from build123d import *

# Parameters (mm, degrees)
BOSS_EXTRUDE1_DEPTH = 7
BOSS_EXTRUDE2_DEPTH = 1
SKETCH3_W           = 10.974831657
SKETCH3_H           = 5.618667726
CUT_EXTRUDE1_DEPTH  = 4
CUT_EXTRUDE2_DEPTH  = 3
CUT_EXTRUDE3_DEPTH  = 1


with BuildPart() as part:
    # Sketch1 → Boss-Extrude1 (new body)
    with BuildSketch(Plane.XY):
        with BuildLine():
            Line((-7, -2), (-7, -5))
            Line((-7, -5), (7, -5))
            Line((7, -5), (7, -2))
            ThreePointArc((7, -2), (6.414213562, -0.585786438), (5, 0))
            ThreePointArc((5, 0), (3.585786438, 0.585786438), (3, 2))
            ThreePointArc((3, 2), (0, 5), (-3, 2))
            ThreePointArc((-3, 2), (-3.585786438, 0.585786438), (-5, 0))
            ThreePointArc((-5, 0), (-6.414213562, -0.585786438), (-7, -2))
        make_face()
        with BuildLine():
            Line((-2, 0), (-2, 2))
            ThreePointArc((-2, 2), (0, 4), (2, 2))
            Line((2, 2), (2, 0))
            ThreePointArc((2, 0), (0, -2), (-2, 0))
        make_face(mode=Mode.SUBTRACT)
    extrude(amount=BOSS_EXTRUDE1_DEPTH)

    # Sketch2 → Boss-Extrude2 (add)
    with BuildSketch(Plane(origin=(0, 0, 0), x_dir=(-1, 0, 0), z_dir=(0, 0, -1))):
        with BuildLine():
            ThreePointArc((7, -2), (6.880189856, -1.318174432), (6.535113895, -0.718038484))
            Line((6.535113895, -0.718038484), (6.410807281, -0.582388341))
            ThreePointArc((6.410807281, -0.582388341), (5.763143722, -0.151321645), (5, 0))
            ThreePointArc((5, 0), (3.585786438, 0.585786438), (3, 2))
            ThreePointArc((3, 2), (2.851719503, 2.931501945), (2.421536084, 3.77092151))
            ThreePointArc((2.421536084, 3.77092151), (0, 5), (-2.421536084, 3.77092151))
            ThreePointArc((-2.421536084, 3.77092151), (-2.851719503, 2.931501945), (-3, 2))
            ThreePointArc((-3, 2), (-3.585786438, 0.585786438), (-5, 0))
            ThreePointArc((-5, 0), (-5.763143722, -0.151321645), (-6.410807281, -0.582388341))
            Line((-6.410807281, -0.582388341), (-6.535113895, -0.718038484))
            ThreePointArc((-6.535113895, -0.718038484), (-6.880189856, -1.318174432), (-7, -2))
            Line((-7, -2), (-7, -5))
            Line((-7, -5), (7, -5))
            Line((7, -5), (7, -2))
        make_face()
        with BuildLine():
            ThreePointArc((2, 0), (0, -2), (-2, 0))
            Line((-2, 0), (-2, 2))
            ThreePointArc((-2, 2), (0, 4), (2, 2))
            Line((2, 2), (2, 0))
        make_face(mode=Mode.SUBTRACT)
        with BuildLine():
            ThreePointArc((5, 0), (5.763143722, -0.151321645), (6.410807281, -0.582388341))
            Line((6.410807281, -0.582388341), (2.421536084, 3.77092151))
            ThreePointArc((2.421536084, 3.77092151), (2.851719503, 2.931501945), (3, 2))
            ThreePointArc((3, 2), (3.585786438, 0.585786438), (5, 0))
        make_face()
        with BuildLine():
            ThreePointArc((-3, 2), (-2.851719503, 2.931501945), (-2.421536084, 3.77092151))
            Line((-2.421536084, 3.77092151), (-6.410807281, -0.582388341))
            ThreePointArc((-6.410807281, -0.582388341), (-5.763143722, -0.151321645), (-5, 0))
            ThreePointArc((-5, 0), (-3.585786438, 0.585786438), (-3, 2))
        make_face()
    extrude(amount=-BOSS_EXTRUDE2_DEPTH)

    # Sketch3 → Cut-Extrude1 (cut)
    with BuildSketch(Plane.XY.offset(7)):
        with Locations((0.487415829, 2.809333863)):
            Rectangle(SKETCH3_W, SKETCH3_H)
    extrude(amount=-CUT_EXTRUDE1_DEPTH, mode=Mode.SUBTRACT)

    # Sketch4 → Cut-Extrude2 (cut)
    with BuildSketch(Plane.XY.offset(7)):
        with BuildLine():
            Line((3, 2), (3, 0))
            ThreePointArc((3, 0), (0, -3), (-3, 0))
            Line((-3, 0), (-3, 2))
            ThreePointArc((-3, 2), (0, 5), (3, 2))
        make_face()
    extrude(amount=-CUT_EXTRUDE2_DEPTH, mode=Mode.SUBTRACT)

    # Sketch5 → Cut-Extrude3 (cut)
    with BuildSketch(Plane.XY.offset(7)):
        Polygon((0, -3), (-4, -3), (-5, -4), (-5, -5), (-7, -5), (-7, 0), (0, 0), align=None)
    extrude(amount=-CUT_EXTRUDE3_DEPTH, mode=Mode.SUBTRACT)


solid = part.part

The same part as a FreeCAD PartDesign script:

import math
import FreeCAD as App
import Part
import Sketcher

V = App.Vector
Q = App.Units.Quantity

doc = App.newDocument("Part")
body = doc.addObject("PartDesign::Body", "Body")

# Sketch on XY plane
sketch1 = body.newObject("Sketcher::SketchObject", "Sketch")
sketch1.AttachmentSupport = (doc.getObject("XY_Plane"), [""])
sketch1.MapMode = "FlatFace"
sketch1.addGeometry(Part.LineSegment(V(-7, -2, 0), V(-7, -5, 0)), False)
sketch1.addGeometry(Part.LineSegment(V(-7, -5, 0), V(7, -5, 0)), False)
sketch1.addGeometry(Part.LineSegment(V(7, -5, 0), V(7, -2, 0)), False)
sketch1.addGeometry(Part.ArcOfCircle(Part.Circle(V(5, -2, 0), V(0, 0, 1), 2), math.radians(0), math.radians(90)), False)
sketch1.addGeometry(Part.ArcOfCircle(Part.Circle(V(5, 2, 0), V(0, 0, 1), 2), math.radians(-180), math.radians(-90)), False)
sketch1.addGeometry(Part.ArcOfCircle(Part.Circle(V(0, 2, 0), V(0, 0, 1), 3), math.radians(0), math.radians(180)), False)
sketch1.addGeometry(Part.ArcOfCircle(Part.Circle(V(-5, 2, 0), V(0, 0, 1), 2), math.radians(-90), math.radians(0)), False)
sketch1.addGeometry(Part.ArcOfCircle(Part.Circle(V(-5, -2, 0), V(0, 0, 1), 2), math.radians(90), math.radians(180)), False)
sketch1.addGeometry(Part.ArcOfCircle(Part.Circle(V(0, 0, 0), V(0, 0, 1), 2), math.radians(180), math.radians(360)), False)
sketch1.addGeometry(Part.LineSegment(V(-2, 0, 0), V(-2, 2, 0)), False)
sketch1.addGeometry(Part.ArcOfCircle(Part.Circle(V(0, 2, 0), V(0, 0, 1), 2), math.radians(0), math.radians(180)), False)
sketch1.addGeometry(Part.LineSegment(V(2, 2, 0), V(2, 0, 0)), False)
sketch1.addConstraint(Sketcher.Constraint("Coincident", 0, 2, 1, 1))
sketch1.addConstraint(Sketcher.Constraint("Coincident", 1, 2, 2, 1))
sketch1.addConstraint(Sketcher.Constraint("Tangent", 2, 2, 3, 1))
sketch1.addConstraint(Sketcher.Constraint("Tangent", 3, 2, 4, 2))
sketch1.addConstraint(Sketcher.Constraint("Tangent", 4, 1, 5, 1))
sketch1.addConstraint(Sketcher.Constraint("Tangent", 5, 2, 6, 2))
sketch1.addConstraint(Sketcher.Constraint("Tangent", 6, 1, 7, 1))
sketch1.addConstraint(Sketcher.Constraint("Tangent", 7, 2, 0, 1))
sketch1.addConstraint(Sketcher.Constraint("Tangent", 8, 1, 9, 1))
sketch1.addConstraint(Sketcher.Constraint("Tangent", 9, 2, 10, 2))
sketch1.addConstraint(Sketcher.Constraint("Tangent", 10, 1, 11, 1))
sketch1.addConstraint(Sketcher.Constraint("Tangent", 11, 2, 8, 2))
sketch1.addConstraint(Sketcher.Constraint("Vertical", 0))
sketch1.addConstraint(Sketcher.Constraint("Horizontal", 1))
sketch1.addConstraint(Sketcher.Constraint("Vertical", 2))
sketch1.addConstraint(Sketcher.Constraint("Vertical", 9))
sketch1.addConstraint(Sketcher.Constraint("Vertical", 11))
sketch1.addConstraint(Sketcher.Constraint("Coincident", 8, 3, -1, 1))
sketch1.addConstraint(Sketcher.Constraint("Coincident", 10, 3, 5, 3))
sketch1.addConstraint(Sketcher.Constraint("Equal", 3, 4))
sketch1.addConstraint(Sketcher.Constraint("Equal", 4, 6))
sketch1.addConstraint(Sketcher.Constraint("Equal", 6, 7))
sketch1.addConstraint(Sketcher.Constraint("Equal", 7, 8))
sketch1.addConstraint(Sketcher.Constraint("Symmetric", 3, 3, 6, 3, -1, 1))
sketch1.addConstraint(Sketcher.Constraint("Symmetric", 3, 3, 7, 3, -2))
sketch1.addConstraint(Sketcher.Constraint("Horizontal", 4, 3, 5, 3))
sketch1.addConstraint(Sketcher.Constraint("Radius", 3, Q("2 mm")))
sketch1.addConstraint(Sketcher.Constraint("Radius", 5, Q("3 mm")))
sketch1.addConstraint(Sketcher.Constraint("DistanceY", 0, 2, 0, 1, Q("3 mm")))
pad1 = body.newObject("PartDesign::Pad", "Pad")
pad1.Profile = sketch1
pad1.Length = 7

# Sketch on XY plane
sketch2 = body.newObject("Sketcher::SketchObject", "Sketch001")
sketch2.AttachmentSupport = (doc.getObject("XY_Plane"), [""])
sketch2.MapMode = "FlatFace"
sketch2.addGeometry(Part.ArcOfCircle(Part.Circle(V(-5, -2, 0), V(0, 0, 1), 2), math.radians(140), math.radians(180)), False)
sketch2.addGeometry(Part.LineSegment(V(-6.54, -0.72, 0), V(-6.41, -0.58, 0)), False)
sketch2.addGeometry(Part.LineSegment(V(-6.41, -0.58, 0), V(-2.42, 3.77, 0)), False)
sketch2.addGeometry(Part.ArcOfCircle(Part.Circle(V(0, 2, 0), V(0, 0, 1), 3), math.radians(36), math.radians(144)), False)
sketch2.addGeometry(Part.LineSegment(V(2.42, 3.77, 0), V(6.41, -0.58, 0)), False)
sketch2.addGeometry(Part.LineSegment(V(6.41, -0.58, 0), V(6.54, -0.72, 0)), False)
sketch2.addGeometry(Part.ArcOfCircle(Part.Circle(V(5, -2, 0), V(0, 0, 1), 2), math.radians(0), math.radians(40)), False)
sketch2.addGeometry(Part.LineSegment(V(7, -2, 0), V(7, -5, 0)), False)
sketch2.addGeometry(Part.LineSegment(V(7, -5, 0), V(-7, -5, 0)), False)
sketch2.addGeometry(Part.LineSegment(V(-7, -5, 0), V(-7, -2, 0)), False)
sketch2.addGeometry(Part.LineSegment(V(-2, 2, 0), V(-2, 0, 0)), False)
sketch2.addGeometry(Part.ArcOfCircle(Part.Circle(V(0, 0, 0), V(0, 0, 1), 2), math.radians(180), math.radians(360)), False)
sketch2.addGeometry(Part.LineSegment(V(2, 0, 0), V(2, 2, 0)), False)
sketch2.addGeometry(Part.ArcOfCircle(Part.Circle(V(0, 2, 0), V(0, 0, 1), 2), math.radians(0), math.radians(180)), False)
sketch2.addConstraint(Sketcher.Constraint("Coincident", 0, 1, 1, 1))
sketch2.addConstraint(Sketcher.Constraint("Coincident", 1, 2, 2, 1))
sketch2.addConstraint(Sketcher.Constraint("Coincident", 2, 2, 3, 2))
sketch2.addConstraint(Sketcher.Constraint("Coincident", 3, 1, 4, 1))
sketch2.addConstraint(Sketcher.Constraint("Coincident", 4, 2, 5, 1))
sketch2.addConstraint(Sketcher.Constraint("Coincident", 5, 2, 6, 2))
sketch2.addConstraint(Sketcher.Constraint("Tangent", 6, 1, 7, 1))
sketch2.addConstraint(Sketcher.Constraint("Coincident", 7, 2, 8, 1))
sketch2.addConstraint(Sketcher.Constraint("Coincident", 8, 2, 9, 1))
sketch2.addConstraint(Sketcher.Constraint("Tangent", 9, 2, 0, 2))
sketch2.addConstraint(Sketcher.Constraint("Tangent", 10, 2, 11, 1))
sketch2.addConstraint(Sketcher.Constraint("Tangent", 11, 2, 12, 1))
sketch2.addConstraint(Sketcher.Constraint("Tangent", 12, 2, 13, 1))
sketch2.addConstraint(Sketcher.Constraint("Tangent", 13, 2, 10, 1))
sketch2.addConstraint(Sketcher.Constraint("Vertical", 7))
sketch2.addConstraint(Sketcher.Constraint("Horizontal", 8))
sketch2.addConstraint(Sketcher.Constraint("Vertical", 9))
sketch2.addConstraint(Sketcher.Constraint("Vertical", 10))
sketch2.addConstraint(Sketcher.Constraint("Vertical", 12))
sketch2.addConstraint(Sketcher.Constraint("Coincident", 11, 3, -1, 1))
sketch2.addConstraint(Sketcher.Constraint("Coincident", 13, 3, 3, 3))
sketch2.addConstraint(Sketcher.Constraint("Equal", 0, 6))
sketch2.addConstraint(Sketcher.Constraint("Equal", 6, 11))
sketch2.addConstraint(Sketcher.Constraint("Symmetric", 0, 3, 6, 3, -2))
sketch2.addConstraint(Sketcher.Constraint("Symmetric", 1, 2, 4, 2, -2))
sketch2.addConstraint(Sketcher.Constraint("Parallel", 1, 2))
sketch2.addConstraint(Sketcher.Constraint("Parallel", 4, 5))
sketch2.addConstraint(Sketcher.Constraint("Horizontal", 2, 2, 3, 1))
sketch2.addConstraint(Sketcher.Constraint("Radius", 0, Q("2 mm")))
sketch2.addConstraint(Sketcher.Constraint("Radius", 3, Q("3 mm")))
sketch2.addConstraint(Sketcher.Constraint("DistanceX", 8, 2, 8, 1, Q("14 mm")))
sketch2.addConstraint(Sketcher.Constraint("DistanceY", 7, 2, 7, 1, Q("3 mm")))
sketch2.addConstraint(Sketcher.Constraint("DistanceY", 10, 2, 10, 1, Q("2 mm")))
sketch2.addConstraint(Sketcher.Constraint("DistanceY", 0, 3, -1, 1, Q("2 mm")))
sketch2.addConstraint(Sketcher.Constraint("Distance", 2, Q("5.904709 mm")))
sketch2.addConstraint(Sketcher.Constraint("DistanceY", 0, 1, -1, 1, Q("0.718038 mm")))
sketch2.addConstraint(Sketcher.Constraint("DistanceY", 1, 2, -1, 1, Q("0.582388 mm")))
pad2 = body.newObject("PartDesign::Pad", "Pad001")
pad2.Profile = sketch2
pad2.Length = 1

# Sketch on XY plane
sketch3 = body.newObject("Sketcher::SketchObject", "Sketch002")
sketch3.AttachmentSupport = (doc.getObject("XY_Plane"), [""])
sketch3.MapMode = "FlatFace"
sketch3.AttachmentOffset = App.Placement(V(0, 0, 7), App.Rotation())
sketch3.addGeometry(Part.LineSegment(V(-5, 6, 0), V(-5, 0, 0)), False)
sketch3.addGeometry(Part.LineSegment(V(-5, 0, 0), V(6, 0, 0)), False)
sketch3.addGeometry(Part.LineSegment(V(6, 0, 0), V(6, 6, 0)), False)
sketch3.addGeometry(Part.LineSegment(V(6, 6, 0), V(-5, 6, 0)), False)
sketch3.addConstraint(Sketcher.Constraint("Coincident", 0, 2, 1, 1))
sketch3.addConstraint(Sketcher.Constraint("Coincident", 1, 2, 2, 1))
sketch3.addConstraint(Sketcher.Constraint("Coincident", 2, 2, 3, 1))
sketch3.addConstraint(Sketcher.Constraint("Coincident", 3, 2, 0, 1))
sketch3.addConstraint(Sketcher.Constraint("Vertical", 0))
sketch3.addConstraint(Sketcher.Constraint("Horizontal", 1))
sketch3.addConstraint(Sketcher.Constraint("Vertical", 2))
sketch3.addConstraint(Sketcher.Constraint("Horizontal", 3))
sketch3.addConstraint(Sketcher.Constraint("PointOnObject", 0, 2, -1))
sketch3.addConstraint(Sketcher.Constraint("DistanceX", 0, 2, -1, 1, Q("5 mm")))
sketch3.addConstraint(Sketcher.Constraint("DistanceX", 1, 1, 1, 2, Q("10.974832 mm")))
sketch3.addConstraint(Sketcher.Constraint("DistanceY", 0, 2, 0, 1, Q("5.618668 mm")))
pocket1 = body.newObject("PartDesign::Pocket", "Pocket")
pocket1.Profile = sketch3
pocket1.Length = 4

# Sketch on XY plane
sketch4 = body.newObject("Sketcher::SketchObject", "Sketch003")
sketch4.AttachmentSupport = (doc.getObject("XY_Plane"), [""])
sketch4.MapMode = "FlatFace"
sketch4.AttachmentOffset = App.Placement(V(0, 0, 7), App.Rotation())
sketch4.addGeometry(Part.LineSegment(V(3, 0, 0), V(3, 2, 0)), False)
sketch4.addGeometry(Part.ArcOfCircle(Part.Circle(V(0, 2, 0), V(0, 0, 1), 3), math.radians(0), math.radians(180)), False)
sketch4.addGeometry(Part.LineSegment(V(-3, 2, 0), V(-3, 0, 0)), False)
sketch4.addGeometry(Part.ArcOfCircle(Part.Circle(V(0, 0, 0), V(0, 0, 1), 3), math.radians(180), math.radians(360)), False)
sketch4.addConstraint(Sketcher.Constraint("Tangent", 0, 2, 1, 1))
sketch4.addConstraint(Sketcher.Constraint("Tangent", 1, 2, 2, 1))
sketch4.addConstraint(Sketcher.Constraint("Tangent", 2, 2, 3, 1))
sketch4.addConstraint(Sketcher.Constraint("Tangent", 3, 2, 0, 1))
sketch4.addConstraint(Sketcher.Constraint("Vertical", 0))
sketch4.addConstraint(Sketcher.Constraint("Vertical", 2))
sketch4.addConstraint(Sketcher.Constraint("Coincident", 3, 3, -1, 1))
sketch4.addConstraint(Sketcher.Constraint("Radius", 1, Q("3 mm")))
sketch4.addConstraint(Sketcher.Constraint("DistanceY", 0, 1, 0, 2, Q("2 mm")))
pocket2 = body.newObject("PartDesign::Pocket", "Pocket001")
pocket2.Profile = sketch4
pocket2.Length = 3

# Sketch on XY plane
sketch5 = body.newObject("Sketcher::SketchObject", "Sketch004")
sketch5.AttachmentSupport = (doc.getObject("XY_Plane"), [""])
sketch5.MapMode = "FlatFace"
sketch5.AttachmentOffset = App.Placement(V(0, 0, 7), App.Rotation())
sketch5.addGeometry(Part.LineSegment(V(-4, -3, 0), V(0, -3, 0)), False)
sketch5.addGeometry(Part.LineSegment(V(0, -3, 0), V(0, 0, 0)), False)
sketch5.addGeometry(Part.LineSegment(V(0, 0, 0), V(-7, 0, 0)), False)
sketch5.addGeometry(Part.LineSegment(V(-7, 0, 0), V(-7, -5, 0)), False)
sketch5.addGeometry(Part.LineSegment(V(-7, -5, 0), V(-5, -5, 0)), False)
sketch5.addGeometry(Part.LineSegment(V(-5, -5, 0), V(-5, -4, 0)), False)
sketch5.addGeometry(Part.LineSegment(V(-5, -4, 0), V(-4, -3, 0)), False)
sketch5.addConstraint(Sketcher.Constraint("Coincident", 0, 2, 1, 1))
sketch5.addConstraint(Sketcher.Constraint("Coincident", 1, 2, 2, 1))
sketch5.addConstraint(Sketcher.Constraint("Coincident", 2, 2, 3, 1))
sketch5.addConstraint(Sketcher.Constraint("Coincident", 3, 2, 4, 1))
sketch5.addConstraint(Sketcher.Constraint("Coincident", 4, 2, 5, 1))
sketch5.addConstraint(Sketcher.Constraint("Coincident", 5, 2, 6, 1))
sketch5.addConstraint(Sketcher.Constraint("Coincident", 6, 2, 0, 1))
sketch5.addConstraint(Sketcher.Constraint("Horizontal", 0))
sketch5.addConstraint(Sketcher.Constraint("Vertical", 1))
sketch5.addConstraint(Sketcher.Constraint("Horizontal", 2))
sketch5.addConstraint(Sketcher.Constraint("Vertical", 3))
sketch5.addConstraint(Sketcher.Constraint("Horizontal", 4))
sketch5.addConstraint(Sketcher.Constraint("Vertical", 5))
sketch5.addConstraint(Sketcher.Constraint("Coincident", 1, 2, -1, 1))
sketch5.addConstraint(Sketcher.Constraint("DistanceX", 0, 1, 0, 2, Q("4 mm")))
sketch5.addConstraint(Sketcher.Constraint("DistanceX", 2, 2, 2, 1, Q("7 mm")))
sketch5.addConstraint(Sketcher.Constraint("DistanceX", 4, 1, 4, 2, Q("2 mm")))
sketch5.addConstraint(Sketcher.Constraint("DistanceY", 1, 1, 1, 2, Q("3 mm")))
sketch5.addConstraint(Sketcher.Constraint("DistanceY", 3, 2, 3, 1, Q("5 mm")))
sketch5.addConstraint(Sketcher.Constraint("DistanceY", 5, 1, 5, 2, Q("1 mm")))
pocket3 = body.newObject("PartDesign::Pocket", "Pocket002")
pocket3.Profile = sketch5
pocket3.Length = 1

doc.recompute()
